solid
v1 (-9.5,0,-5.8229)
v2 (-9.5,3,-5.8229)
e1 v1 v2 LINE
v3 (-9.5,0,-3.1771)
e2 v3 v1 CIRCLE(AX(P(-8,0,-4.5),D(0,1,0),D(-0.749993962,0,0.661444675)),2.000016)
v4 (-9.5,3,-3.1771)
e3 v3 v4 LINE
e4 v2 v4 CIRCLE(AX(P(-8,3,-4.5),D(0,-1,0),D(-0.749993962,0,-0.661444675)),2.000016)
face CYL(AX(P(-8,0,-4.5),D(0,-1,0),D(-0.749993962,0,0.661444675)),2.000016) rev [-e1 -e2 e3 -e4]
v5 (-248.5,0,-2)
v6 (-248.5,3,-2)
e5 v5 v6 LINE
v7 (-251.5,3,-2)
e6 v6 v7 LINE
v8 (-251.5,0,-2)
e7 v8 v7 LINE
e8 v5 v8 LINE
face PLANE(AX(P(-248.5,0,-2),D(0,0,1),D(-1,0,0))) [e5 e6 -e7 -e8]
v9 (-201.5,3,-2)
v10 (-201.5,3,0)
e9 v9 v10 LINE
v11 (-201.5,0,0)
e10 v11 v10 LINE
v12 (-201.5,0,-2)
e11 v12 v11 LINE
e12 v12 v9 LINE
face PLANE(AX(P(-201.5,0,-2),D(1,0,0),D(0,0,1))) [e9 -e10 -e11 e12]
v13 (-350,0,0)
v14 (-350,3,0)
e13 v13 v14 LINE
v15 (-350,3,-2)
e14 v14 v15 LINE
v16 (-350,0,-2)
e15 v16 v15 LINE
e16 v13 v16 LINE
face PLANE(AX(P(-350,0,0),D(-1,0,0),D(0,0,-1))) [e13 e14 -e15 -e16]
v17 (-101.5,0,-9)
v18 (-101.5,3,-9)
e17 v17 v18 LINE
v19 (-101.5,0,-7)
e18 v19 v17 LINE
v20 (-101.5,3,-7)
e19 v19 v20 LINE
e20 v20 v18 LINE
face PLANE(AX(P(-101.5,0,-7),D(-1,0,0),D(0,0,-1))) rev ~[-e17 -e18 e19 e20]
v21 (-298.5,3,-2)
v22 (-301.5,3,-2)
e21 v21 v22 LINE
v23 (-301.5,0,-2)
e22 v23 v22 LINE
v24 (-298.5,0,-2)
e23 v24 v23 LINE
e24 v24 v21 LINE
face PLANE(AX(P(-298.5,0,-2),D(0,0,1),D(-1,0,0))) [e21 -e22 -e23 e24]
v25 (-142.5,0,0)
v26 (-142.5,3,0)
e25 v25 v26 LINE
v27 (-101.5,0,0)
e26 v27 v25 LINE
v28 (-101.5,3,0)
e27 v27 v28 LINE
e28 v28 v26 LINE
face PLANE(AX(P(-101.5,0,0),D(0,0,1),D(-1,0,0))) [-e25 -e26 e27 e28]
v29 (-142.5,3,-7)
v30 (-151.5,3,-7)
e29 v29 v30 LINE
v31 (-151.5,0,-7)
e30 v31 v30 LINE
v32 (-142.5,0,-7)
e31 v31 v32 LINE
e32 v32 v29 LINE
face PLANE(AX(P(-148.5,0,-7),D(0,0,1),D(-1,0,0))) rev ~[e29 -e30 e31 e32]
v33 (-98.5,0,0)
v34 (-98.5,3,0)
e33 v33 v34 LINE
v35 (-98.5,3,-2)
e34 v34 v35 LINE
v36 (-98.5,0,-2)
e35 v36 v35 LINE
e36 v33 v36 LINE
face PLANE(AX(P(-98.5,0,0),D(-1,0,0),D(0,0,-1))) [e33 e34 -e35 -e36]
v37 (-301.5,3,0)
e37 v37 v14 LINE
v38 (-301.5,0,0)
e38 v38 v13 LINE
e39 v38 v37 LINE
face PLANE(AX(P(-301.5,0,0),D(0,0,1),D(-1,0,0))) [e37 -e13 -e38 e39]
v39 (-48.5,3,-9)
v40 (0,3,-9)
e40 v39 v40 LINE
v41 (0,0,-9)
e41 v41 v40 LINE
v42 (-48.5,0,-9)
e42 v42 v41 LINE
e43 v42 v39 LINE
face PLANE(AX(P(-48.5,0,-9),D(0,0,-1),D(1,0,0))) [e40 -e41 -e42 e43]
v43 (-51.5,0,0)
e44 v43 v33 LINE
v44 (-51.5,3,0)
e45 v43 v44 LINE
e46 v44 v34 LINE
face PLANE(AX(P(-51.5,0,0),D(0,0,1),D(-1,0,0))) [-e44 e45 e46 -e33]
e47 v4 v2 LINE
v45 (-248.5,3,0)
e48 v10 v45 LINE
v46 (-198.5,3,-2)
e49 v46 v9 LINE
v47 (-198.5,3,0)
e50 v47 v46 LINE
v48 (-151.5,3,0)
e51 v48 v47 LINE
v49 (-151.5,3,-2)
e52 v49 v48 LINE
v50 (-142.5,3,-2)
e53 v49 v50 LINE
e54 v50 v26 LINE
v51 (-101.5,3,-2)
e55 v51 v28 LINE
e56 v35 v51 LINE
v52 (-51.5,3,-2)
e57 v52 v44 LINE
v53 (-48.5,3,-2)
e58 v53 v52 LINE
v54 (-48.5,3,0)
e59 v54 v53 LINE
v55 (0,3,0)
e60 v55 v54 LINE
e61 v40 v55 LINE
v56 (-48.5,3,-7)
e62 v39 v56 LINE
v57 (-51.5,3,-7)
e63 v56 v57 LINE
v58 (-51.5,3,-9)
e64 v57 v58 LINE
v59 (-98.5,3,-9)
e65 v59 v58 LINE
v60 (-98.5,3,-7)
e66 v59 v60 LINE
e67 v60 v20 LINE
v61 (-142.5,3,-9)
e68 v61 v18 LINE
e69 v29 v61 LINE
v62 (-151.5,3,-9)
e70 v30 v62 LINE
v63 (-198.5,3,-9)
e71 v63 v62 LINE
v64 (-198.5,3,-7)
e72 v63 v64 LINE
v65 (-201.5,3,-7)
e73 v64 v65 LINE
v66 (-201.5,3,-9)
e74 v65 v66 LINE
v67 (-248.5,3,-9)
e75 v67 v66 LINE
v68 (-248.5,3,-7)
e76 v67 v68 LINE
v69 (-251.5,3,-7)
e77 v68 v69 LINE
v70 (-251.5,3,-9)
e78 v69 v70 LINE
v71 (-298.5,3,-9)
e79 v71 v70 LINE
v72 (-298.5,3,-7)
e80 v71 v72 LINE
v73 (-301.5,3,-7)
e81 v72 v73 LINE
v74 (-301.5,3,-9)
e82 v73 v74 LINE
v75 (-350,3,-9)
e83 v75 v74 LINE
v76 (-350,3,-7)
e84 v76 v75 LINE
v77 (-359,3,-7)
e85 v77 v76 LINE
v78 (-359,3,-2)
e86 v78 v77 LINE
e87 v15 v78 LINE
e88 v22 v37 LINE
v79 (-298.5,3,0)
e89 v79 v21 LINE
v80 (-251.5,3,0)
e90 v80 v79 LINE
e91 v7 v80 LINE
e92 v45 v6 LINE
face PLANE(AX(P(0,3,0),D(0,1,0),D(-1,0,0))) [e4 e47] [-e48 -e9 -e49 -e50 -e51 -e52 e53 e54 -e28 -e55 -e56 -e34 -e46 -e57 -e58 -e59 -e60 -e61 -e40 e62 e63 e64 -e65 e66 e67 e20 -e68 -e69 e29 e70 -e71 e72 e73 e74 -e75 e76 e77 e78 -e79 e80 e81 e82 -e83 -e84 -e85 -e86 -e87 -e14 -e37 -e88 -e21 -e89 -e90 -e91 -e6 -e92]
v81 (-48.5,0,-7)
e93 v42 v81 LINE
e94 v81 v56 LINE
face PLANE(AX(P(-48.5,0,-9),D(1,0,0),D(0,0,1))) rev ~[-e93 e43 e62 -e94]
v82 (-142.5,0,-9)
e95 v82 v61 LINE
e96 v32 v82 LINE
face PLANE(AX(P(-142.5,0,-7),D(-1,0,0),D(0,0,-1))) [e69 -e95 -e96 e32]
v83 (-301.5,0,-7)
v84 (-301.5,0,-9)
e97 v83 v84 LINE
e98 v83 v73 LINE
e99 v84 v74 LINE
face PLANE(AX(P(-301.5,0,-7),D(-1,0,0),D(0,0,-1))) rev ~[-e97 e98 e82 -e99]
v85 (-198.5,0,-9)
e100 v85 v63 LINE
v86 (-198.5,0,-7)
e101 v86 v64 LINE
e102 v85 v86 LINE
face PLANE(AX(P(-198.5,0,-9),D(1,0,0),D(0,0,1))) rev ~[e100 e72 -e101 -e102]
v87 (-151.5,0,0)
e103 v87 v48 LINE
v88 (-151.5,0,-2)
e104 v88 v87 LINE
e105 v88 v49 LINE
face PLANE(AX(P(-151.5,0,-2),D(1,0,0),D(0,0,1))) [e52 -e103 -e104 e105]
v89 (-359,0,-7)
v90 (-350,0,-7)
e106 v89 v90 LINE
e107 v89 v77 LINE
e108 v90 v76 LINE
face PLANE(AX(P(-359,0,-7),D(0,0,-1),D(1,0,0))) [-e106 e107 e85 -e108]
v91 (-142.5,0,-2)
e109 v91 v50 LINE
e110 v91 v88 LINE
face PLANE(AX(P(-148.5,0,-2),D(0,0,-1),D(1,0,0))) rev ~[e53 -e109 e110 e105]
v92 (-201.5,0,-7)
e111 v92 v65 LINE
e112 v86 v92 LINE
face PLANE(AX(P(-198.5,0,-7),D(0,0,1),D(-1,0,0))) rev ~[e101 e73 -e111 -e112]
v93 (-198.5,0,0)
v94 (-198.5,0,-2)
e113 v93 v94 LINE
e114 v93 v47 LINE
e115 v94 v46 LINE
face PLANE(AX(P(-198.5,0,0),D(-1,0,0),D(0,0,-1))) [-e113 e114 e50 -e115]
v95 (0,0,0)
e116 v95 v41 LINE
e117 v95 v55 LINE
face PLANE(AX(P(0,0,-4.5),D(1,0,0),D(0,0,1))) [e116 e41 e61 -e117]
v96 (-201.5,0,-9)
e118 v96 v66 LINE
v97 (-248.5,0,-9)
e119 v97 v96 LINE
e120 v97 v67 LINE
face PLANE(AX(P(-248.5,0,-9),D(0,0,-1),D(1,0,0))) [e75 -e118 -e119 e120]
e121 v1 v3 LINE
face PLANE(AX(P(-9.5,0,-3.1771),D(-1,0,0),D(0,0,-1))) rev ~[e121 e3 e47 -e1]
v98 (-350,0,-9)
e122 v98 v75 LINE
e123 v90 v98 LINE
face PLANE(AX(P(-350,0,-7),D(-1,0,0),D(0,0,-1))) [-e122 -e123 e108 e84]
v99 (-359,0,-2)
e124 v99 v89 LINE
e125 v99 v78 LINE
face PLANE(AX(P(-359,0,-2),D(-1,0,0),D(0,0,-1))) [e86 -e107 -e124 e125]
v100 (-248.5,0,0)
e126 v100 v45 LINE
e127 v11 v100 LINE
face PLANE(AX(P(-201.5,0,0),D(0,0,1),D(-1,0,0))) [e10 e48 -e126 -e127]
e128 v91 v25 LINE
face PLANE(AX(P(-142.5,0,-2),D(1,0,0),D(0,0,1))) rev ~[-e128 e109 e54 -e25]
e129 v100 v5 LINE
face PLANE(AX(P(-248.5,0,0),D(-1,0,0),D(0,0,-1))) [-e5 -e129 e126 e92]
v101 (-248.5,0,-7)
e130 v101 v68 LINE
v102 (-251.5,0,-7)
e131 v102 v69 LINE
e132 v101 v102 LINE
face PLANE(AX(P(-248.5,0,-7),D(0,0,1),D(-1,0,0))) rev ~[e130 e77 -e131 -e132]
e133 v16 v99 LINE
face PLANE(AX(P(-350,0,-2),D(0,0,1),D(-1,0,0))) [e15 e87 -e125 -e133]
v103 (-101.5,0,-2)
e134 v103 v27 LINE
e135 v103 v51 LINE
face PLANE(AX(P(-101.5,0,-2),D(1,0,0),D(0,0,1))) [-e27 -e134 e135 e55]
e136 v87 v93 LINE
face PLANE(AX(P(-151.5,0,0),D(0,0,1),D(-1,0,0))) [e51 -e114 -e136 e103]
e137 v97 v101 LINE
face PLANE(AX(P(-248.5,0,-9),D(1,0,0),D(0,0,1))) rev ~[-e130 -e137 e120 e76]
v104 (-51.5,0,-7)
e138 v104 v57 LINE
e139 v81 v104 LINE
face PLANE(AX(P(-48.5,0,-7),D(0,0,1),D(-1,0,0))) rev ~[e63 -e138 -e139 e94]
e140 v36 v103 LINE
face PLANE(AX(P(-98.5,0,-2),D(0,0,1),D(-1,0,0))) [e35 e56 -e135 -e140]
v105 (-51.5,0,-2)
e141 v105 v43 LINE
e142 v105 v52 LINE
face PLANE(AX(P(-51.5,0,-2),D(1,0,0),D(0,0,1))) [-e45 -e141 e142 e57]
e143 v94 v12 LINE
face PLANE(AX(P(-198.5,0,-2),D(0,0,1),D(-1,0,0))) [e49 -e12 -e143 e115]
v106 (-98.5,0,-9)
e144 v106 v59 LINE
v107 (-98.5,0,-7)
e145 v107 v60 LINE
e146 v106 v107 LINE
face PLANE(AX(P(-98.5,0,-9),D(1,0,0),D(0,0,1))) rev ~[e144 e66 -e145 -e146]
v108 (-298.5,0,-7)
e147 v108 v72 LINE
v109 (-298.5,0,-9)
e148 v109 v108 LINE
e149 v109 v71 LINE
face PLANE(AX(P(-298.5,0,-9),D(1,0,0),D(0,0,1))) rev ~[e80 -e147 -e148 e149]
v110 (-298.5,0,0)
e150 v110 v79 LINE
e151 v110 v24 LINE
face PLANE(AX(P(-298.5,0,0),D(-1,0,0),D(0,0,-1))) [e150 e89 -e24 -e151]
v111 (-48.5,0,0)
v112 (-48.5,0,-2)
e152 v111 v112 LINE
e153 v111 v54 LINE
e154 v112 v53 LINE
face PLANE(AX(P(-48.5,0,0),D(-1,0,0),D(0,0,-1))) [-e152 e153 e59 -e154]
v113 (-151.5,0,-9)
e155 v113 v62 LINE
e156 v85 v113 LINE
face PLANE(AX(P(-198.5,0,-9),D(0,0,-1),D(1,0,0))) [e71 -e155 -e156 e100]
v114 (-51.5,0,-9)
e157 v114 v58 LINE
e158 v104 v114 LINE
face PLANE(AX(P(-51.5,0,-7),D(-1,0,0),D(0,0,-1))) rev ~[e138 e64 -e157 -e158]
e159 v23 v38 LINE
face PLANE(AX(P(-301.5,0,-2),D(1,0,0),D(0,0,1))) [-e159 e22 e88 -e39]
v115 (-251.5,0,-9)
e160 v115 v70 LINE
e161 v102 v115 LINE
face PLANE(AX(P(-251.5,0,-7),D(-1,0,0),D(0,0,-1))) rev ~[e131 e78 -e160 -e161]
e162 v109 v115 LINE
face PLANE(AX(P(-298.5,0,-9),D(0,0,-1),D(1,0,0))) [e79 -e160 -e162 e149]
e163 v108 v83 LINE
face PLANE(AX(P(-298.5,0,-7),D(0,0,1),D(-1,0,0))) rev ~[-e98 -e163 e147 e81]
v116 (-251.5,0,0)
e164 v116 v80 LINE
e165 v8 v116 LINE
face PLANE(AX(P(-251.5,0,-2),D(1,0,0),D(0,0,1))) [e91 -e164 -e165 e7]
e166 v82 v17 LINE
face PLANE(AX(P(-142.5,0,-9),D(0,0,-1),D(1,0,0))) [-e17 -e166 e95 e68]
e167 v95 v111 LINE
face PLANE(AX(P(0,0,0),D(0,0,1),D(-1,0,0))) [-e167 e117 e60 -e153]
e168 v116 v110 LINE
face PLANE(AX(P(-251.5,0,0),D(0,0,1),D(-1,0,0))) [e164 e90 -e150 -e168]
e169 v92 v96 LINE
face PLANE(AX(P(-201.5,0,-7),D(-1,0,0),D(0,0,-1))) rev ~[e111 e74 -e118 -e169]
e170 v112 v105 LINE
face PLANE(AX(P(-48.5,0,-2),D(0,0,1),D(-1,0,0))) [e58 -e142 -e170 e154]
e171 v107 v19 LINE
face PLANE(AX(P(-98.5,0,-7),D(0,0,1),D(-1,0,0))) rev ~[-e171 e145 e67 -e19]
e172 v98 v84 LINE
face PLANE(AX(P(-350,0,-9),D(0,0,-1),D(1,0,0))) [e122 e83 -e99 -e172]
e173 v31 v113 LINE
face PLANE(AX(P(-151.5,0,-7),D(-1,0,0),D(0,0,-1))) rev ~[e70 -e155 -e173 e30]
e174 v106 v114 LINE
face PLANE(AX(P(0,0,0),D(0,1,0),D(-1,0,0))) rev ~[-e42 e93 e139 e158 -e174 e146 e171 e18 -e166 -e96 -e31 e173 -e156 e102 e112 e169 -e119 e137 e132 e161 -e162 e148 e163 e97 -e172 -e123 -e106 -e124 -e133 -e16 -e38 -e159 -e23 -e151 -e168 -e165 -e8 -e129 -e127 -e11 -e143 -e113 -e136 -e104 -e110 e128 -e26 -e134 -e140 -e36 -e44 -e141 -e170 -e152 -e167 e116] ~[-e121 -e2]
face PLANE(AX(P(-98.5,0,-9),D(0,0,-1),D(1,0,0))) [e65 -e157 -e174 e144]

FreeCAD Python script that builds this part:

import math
import FreeCAD as App
import Part
import Sketcher
Q = App.Units.Quantity


def add_polygon(sketch, points):
    """Adds a closed chain of lines whose ends are joined by coincident constraints."""
    first, n = sketch.GeometryCount, len(points)
    for a, b in zip(points, points[1:] + points[:1]):
        sketch.addGeometry(Part.LineSegment(App.Vector(*a, 0), App.Vector(*b, 0)), False)
    for i in range(n):
        sketch.addConstraint(Sketcher.Constraint("Coincident", first + i, 2, first + (i + 1) % n, 1))

doc = App.newDocument("Part")
body = doc.addObject("PartDesign::Body", "Body")

# Sketch on XZ plane
sketch1 = doc.addObject("Sketcher::SketchObject", "Sketch")
body.addObject(sketch1)
sketch1.AttachmentSupport = (doc.XZ_Plane, [""])
sketch1.MapMode = "FlatFace"
add_polygon(sketch1, [(-48.5, 0), (0, 0), (0, -9), (-48.5, -9), (-48.5, -7), (-51.5, -7), (-51.5, -9), (-98.5, -9), (-98.5, -7), (-101.5, -7), (-101.5, -9), (-142.5, -9), (-142.5, -7), (-151.5, -7), (-151.5, -9), (-198.5, -9), (-198.5, -7), (-201.5, -7), (-201.5, -9), (-248.5, -9), (-248.5, -7), (-251.5, -7), (-251.5, -9), (-298.5, -9), (-298.5, -7), (-301.5, -7), (-301.5, -9), (-350, -9), (-350, -7), (-359, -7), (-359, -2), (-350, -2), (-350, 0), (-301.5, 0), (-301.5, -2), (-298.5, -2), (-298.5, 0), (-251.5, 0), (-251.5, -2), (-248.5, -2), (-248.5, 0), (-201.5, 0), (-201.5, -2), (-198.5, -2), (-198.5, 0), (-151.5, 0), (-151.5, -2), (-142.5, -2), (-142.5, 0), (-101.5, 0), (-101.5, -2), (-98.5, -2), (-98.5, 0), (-51.5, 0), (-51.5, -2), (-48.5, -2)])  # lines 0-55
sketch1.addGeometry(Part.LineSegment(App.Vector(-9.5, -3.1771, 0), App.Vector(-9.5, -5.8229, 0)), False)  # 56
sketch1.addGeometry(Part.ArcOfCircle(Part.Circle(App.Vector(-8, -4.5, 0), App.Vector(0, 0, 1), 2.000016), math.radians(-138.589855), math.radians(138.589855)), False)  # 57
sketch1.addConstraint([
    Sketcher.Constraint("Coincident", 56, 1, 57, 2),
    Sketcher.Constraint("Coincident", 57, 1, 56, 2),
    Sketcher.Constraint("Horizontal", 0),
    Sketcher.Constraint("Vertical", 1),
    Sketcher.Constraint("Horizontal", 2),
    Sketcher.Constraint("Vertical", 3),
    Sketcher.Constraint("Horizontal", 4),
    Sketcher.Constraint("Vertical", 5),
    Sketcher.Constraint("Horizontal", 6),
    Sketcher.Constraint("Vertical", 7),
    Sketcher.Constraint("Horizontal", 8),
    Sketcher.Constraint("Vertical", 9),
    Sketcher.Constraint("Horizontal", 10),
    Sketcher.Constraint("Vertical", 11),
    Sketcher.Constraint("Horizontal", 12),
    Sketcher.Constraint("Vertical", 13),
    Sketcher.Constraint("Horizontal", 14),
    Sketcher.Constraint("Vertical", 15),
    Sketcher.Constraint("Horizontal", 16),
    Sketcher.Constraint("Vertical", 17),
    Sketcher.Constraint("Horizontal", 18),
    Sketcher.Constraint("Vertical", 19),
    Sketcher.Constraint("Horizontal", 20),
    Sketcher.Constraint("Vertical", 21),
    Sketcher.Constraint("Horizontal", 22),
    Sketcher.Constraint("Vertical", 23),
    Sketcher.Constraint("Horizontal", 24),
    Sketcher.Constraint("Vertical", 25),
    Sketcher.Constraint("Horizontal", 26),
    Sketcher.Constraint("Vertical", 27),
    Sketcher.Constraint("Horizontal", 28),
    Sketcher.Constraint("Vertical", 29),
    Sketcher.Constraint("Horizontal", 30),
    Sketcher.Constraint("Vertical", 31),
    Sketcher.Constraint("Horizontal", 32),
    Sketcher.Constraint("Vertical", 33),
    Sketcher.Constraint("Horizontal", 34),
    Sketcher.Constraint("Vertical", 35),
    Sketcher.Constraint("Horizontal", 36),
    Sketcher.Constraint("Vertical", 37),
    Sketcher.Constraint("Horizontal", 38),
    Sketcher.Constraint("Vertical", 39),
    Sketcher.Constraint("Horizontal", 40),
    Sketcher.Constraint("Vertical", 41),
    Sketcher.Constraint("Horizontal", 42),
    Sketcher.Constraint("Vertical", 43),
    Sketcher.Constraint("Horizontal", 44),
    Sketcher.Constraint("Vertical", 45),
    Sketcher.Constraint("Horizontal", 46),
    Sketcher.Constraint("Vertical", 47),
    Sketcher.Constraint("Horizontal", 48),
    Sketcher.Constraint("Vertical", 49),
    Sketcher.Constraint("Horizontal", 50),
    Sketcher.Constraint("Vertical", 51),
    Sketcher.Constraint("Horizontal", 52),
    Sketcher.Constraint("Vertical", 53),
    Sketcher.Constraint("Horizontal", 54),
    Sketcher.Constraint("Vertical", 55),
    Sketcher.Constraint("Vertical", 56),
    Sketcher.Constraint("Coincident", 0, 2, -1, 1),
    Sketcher.Constraint("PointOnObject", 31, 2, -1),
    Sketcher.Constraint("PointOnObject", 35, 2, -1),
    Sketcher.Constraint("PointOnObject", 39, 2, -1),
    Sketcher.Constraint("PointOnObject", 43, 2, -1),
    Sketcher.Constraint("PointOnObject", 47, 2, -1),
    Sketcher.Constraint("PointOnObject", 51, 2, -1),
    Sketcher.Constraint("Horizontal", 2, 2, 5, 2),
    Sketcher.Constraint("Horizontal", 4, 2, 7, 2),
    Sketcher.Constraint("Horizontal", 6, 2, 9, 2),
    Sketcher.Constraint("Horizontal", 8, 2, 11, 2),
    Sketcher.Constraint("Horizontal", 10, 2, 13, 2),
    Sketcher.Constraint("Horizontal", 12, 2, 15, 2),
    Sketcher.Constraint("Horizontal", 14, 2, 17, 2),
    Sketcher.Constraint("Horizontal", 16, 2, 19, 2),
    Sketcher.Constraint("Horizontal", 18, 2, 21, 2),
    Sketcher.Constraint("Horizontal", 20, 2, 23, 2),
    Sketcher.Constraint("Horizontal", 22, 2, 25, 2),
    Sketcher.Constraint("Horizontal", 24, 2, 27, 2),
    Sketcher.Constraint("Horizontal", 30, 2, 33, 2),
    Sketcher.Constraint("Horizontal", 34, 2, 37, 2),
    Sketcher.Constraint("Horizontal", 38, 2, 41, 2),
    Sketcher.Constraint("Horizontal", 42, 2, 45, 2),
    Sketcher.Constraint("Horizontal", 46, 2, 49, 2),
    Sketcher.Constraint("Horizontal", 50, 2, 53, 2),
    Sketcher.Constraint("Vertical", 27, 2, 30, 2),
    Sketcher.Constraint("Vertical", 25, 2, 32, 2),
    Sketcher.Constraint("Vertical", 23, 2, 34, 2),
    Sketcher.Constraint("Vertical", 21, 2, 36, 2),
    Sketcher.Constraint("Vertical", 19, 2, 38, 2),
    Sketcher.Constraint("Vertical", 17, 2, 40, 2),
    Sketcher.Constraint("Vertical", 15, 2, 42, 2),
    Sketcher.Constraint("Vertical", 13, 2, 44, 2),
    Sketcher.Constraint("Vertical", 11, 2, 46, 2),
    Sketcher.Constraint("Vertical", 9, 2, 48, 2),
    Sketcher.Constraint("Vertical", 7, 2, 50, 2),
    Sketcher.Constraint("Vertical", 5, 2, 52, 2),
    Sketcher.Constraint("Vertical", 3, 2, 54, 2),
    Sketcher.Constraint("Equal", 4, 8),
    Sketcher.Constraint("Equal", 6, 14),
    Sketcher.Constraint("Equal", 8, 16),
    Sketcher.Constraint("Equal", 14, 18),
    Sketcher.Constraint("Equal", 16, 20),
    Sketcher.Constraint("Equal", 18, 22),
    Sketcher.Constraint("Equal", 20, 24),
    Sketcher.Constraint("Equal", 2, 26),
    Sketcher.Constraint("Equal", 12, 28),
    Sketcher.Constraint("Equal", 46, 1),
    Sketcher.Constraint("Equal", 27, 31),
    Sketcher.Constraint("Radius", 57, Q("2 mm")),
    Sketcher.Constraint("DistanceX", 4, 2, 4, 1, Q("3 mm")),
    Sketcher.Constraint("DistanceX", 12, 2, 12, 1, Q("9 mm")),
    Sketcher.Constraint("DistanceY", 3, 1, 3, 2, Q("2 mm")),
    Sketcher.Constraint("DistanceX", 57, 3, -1, 1, Q("8 mm")),
    Sketcher.Constraint("DistanceX", 26, 2, -1, 1, Q("350 mm")),
    Sketcher.Constraint("DistanceX", 6, 2, 2, 2, Q("50 mm")),
    Sketcher.Constraint("DistanceX", 12, 2, 8, 2, Q("50 mm")),
    Sketcher.Constraint("DistanceX", 56, 1, 57, 3, Q("1.5 mm")),
    Sketcher.Constraint("DistanceY", 57, 3, -1, 1, Q("4.5 mm")),
])
pad1 = doc.addObject("PartDesign::Pad", "Pad")
body.addObject(pad1)
pad1.Profile = sketch1
pad1.Length = 3
pad1.Reversed = True

doc.recompute()
